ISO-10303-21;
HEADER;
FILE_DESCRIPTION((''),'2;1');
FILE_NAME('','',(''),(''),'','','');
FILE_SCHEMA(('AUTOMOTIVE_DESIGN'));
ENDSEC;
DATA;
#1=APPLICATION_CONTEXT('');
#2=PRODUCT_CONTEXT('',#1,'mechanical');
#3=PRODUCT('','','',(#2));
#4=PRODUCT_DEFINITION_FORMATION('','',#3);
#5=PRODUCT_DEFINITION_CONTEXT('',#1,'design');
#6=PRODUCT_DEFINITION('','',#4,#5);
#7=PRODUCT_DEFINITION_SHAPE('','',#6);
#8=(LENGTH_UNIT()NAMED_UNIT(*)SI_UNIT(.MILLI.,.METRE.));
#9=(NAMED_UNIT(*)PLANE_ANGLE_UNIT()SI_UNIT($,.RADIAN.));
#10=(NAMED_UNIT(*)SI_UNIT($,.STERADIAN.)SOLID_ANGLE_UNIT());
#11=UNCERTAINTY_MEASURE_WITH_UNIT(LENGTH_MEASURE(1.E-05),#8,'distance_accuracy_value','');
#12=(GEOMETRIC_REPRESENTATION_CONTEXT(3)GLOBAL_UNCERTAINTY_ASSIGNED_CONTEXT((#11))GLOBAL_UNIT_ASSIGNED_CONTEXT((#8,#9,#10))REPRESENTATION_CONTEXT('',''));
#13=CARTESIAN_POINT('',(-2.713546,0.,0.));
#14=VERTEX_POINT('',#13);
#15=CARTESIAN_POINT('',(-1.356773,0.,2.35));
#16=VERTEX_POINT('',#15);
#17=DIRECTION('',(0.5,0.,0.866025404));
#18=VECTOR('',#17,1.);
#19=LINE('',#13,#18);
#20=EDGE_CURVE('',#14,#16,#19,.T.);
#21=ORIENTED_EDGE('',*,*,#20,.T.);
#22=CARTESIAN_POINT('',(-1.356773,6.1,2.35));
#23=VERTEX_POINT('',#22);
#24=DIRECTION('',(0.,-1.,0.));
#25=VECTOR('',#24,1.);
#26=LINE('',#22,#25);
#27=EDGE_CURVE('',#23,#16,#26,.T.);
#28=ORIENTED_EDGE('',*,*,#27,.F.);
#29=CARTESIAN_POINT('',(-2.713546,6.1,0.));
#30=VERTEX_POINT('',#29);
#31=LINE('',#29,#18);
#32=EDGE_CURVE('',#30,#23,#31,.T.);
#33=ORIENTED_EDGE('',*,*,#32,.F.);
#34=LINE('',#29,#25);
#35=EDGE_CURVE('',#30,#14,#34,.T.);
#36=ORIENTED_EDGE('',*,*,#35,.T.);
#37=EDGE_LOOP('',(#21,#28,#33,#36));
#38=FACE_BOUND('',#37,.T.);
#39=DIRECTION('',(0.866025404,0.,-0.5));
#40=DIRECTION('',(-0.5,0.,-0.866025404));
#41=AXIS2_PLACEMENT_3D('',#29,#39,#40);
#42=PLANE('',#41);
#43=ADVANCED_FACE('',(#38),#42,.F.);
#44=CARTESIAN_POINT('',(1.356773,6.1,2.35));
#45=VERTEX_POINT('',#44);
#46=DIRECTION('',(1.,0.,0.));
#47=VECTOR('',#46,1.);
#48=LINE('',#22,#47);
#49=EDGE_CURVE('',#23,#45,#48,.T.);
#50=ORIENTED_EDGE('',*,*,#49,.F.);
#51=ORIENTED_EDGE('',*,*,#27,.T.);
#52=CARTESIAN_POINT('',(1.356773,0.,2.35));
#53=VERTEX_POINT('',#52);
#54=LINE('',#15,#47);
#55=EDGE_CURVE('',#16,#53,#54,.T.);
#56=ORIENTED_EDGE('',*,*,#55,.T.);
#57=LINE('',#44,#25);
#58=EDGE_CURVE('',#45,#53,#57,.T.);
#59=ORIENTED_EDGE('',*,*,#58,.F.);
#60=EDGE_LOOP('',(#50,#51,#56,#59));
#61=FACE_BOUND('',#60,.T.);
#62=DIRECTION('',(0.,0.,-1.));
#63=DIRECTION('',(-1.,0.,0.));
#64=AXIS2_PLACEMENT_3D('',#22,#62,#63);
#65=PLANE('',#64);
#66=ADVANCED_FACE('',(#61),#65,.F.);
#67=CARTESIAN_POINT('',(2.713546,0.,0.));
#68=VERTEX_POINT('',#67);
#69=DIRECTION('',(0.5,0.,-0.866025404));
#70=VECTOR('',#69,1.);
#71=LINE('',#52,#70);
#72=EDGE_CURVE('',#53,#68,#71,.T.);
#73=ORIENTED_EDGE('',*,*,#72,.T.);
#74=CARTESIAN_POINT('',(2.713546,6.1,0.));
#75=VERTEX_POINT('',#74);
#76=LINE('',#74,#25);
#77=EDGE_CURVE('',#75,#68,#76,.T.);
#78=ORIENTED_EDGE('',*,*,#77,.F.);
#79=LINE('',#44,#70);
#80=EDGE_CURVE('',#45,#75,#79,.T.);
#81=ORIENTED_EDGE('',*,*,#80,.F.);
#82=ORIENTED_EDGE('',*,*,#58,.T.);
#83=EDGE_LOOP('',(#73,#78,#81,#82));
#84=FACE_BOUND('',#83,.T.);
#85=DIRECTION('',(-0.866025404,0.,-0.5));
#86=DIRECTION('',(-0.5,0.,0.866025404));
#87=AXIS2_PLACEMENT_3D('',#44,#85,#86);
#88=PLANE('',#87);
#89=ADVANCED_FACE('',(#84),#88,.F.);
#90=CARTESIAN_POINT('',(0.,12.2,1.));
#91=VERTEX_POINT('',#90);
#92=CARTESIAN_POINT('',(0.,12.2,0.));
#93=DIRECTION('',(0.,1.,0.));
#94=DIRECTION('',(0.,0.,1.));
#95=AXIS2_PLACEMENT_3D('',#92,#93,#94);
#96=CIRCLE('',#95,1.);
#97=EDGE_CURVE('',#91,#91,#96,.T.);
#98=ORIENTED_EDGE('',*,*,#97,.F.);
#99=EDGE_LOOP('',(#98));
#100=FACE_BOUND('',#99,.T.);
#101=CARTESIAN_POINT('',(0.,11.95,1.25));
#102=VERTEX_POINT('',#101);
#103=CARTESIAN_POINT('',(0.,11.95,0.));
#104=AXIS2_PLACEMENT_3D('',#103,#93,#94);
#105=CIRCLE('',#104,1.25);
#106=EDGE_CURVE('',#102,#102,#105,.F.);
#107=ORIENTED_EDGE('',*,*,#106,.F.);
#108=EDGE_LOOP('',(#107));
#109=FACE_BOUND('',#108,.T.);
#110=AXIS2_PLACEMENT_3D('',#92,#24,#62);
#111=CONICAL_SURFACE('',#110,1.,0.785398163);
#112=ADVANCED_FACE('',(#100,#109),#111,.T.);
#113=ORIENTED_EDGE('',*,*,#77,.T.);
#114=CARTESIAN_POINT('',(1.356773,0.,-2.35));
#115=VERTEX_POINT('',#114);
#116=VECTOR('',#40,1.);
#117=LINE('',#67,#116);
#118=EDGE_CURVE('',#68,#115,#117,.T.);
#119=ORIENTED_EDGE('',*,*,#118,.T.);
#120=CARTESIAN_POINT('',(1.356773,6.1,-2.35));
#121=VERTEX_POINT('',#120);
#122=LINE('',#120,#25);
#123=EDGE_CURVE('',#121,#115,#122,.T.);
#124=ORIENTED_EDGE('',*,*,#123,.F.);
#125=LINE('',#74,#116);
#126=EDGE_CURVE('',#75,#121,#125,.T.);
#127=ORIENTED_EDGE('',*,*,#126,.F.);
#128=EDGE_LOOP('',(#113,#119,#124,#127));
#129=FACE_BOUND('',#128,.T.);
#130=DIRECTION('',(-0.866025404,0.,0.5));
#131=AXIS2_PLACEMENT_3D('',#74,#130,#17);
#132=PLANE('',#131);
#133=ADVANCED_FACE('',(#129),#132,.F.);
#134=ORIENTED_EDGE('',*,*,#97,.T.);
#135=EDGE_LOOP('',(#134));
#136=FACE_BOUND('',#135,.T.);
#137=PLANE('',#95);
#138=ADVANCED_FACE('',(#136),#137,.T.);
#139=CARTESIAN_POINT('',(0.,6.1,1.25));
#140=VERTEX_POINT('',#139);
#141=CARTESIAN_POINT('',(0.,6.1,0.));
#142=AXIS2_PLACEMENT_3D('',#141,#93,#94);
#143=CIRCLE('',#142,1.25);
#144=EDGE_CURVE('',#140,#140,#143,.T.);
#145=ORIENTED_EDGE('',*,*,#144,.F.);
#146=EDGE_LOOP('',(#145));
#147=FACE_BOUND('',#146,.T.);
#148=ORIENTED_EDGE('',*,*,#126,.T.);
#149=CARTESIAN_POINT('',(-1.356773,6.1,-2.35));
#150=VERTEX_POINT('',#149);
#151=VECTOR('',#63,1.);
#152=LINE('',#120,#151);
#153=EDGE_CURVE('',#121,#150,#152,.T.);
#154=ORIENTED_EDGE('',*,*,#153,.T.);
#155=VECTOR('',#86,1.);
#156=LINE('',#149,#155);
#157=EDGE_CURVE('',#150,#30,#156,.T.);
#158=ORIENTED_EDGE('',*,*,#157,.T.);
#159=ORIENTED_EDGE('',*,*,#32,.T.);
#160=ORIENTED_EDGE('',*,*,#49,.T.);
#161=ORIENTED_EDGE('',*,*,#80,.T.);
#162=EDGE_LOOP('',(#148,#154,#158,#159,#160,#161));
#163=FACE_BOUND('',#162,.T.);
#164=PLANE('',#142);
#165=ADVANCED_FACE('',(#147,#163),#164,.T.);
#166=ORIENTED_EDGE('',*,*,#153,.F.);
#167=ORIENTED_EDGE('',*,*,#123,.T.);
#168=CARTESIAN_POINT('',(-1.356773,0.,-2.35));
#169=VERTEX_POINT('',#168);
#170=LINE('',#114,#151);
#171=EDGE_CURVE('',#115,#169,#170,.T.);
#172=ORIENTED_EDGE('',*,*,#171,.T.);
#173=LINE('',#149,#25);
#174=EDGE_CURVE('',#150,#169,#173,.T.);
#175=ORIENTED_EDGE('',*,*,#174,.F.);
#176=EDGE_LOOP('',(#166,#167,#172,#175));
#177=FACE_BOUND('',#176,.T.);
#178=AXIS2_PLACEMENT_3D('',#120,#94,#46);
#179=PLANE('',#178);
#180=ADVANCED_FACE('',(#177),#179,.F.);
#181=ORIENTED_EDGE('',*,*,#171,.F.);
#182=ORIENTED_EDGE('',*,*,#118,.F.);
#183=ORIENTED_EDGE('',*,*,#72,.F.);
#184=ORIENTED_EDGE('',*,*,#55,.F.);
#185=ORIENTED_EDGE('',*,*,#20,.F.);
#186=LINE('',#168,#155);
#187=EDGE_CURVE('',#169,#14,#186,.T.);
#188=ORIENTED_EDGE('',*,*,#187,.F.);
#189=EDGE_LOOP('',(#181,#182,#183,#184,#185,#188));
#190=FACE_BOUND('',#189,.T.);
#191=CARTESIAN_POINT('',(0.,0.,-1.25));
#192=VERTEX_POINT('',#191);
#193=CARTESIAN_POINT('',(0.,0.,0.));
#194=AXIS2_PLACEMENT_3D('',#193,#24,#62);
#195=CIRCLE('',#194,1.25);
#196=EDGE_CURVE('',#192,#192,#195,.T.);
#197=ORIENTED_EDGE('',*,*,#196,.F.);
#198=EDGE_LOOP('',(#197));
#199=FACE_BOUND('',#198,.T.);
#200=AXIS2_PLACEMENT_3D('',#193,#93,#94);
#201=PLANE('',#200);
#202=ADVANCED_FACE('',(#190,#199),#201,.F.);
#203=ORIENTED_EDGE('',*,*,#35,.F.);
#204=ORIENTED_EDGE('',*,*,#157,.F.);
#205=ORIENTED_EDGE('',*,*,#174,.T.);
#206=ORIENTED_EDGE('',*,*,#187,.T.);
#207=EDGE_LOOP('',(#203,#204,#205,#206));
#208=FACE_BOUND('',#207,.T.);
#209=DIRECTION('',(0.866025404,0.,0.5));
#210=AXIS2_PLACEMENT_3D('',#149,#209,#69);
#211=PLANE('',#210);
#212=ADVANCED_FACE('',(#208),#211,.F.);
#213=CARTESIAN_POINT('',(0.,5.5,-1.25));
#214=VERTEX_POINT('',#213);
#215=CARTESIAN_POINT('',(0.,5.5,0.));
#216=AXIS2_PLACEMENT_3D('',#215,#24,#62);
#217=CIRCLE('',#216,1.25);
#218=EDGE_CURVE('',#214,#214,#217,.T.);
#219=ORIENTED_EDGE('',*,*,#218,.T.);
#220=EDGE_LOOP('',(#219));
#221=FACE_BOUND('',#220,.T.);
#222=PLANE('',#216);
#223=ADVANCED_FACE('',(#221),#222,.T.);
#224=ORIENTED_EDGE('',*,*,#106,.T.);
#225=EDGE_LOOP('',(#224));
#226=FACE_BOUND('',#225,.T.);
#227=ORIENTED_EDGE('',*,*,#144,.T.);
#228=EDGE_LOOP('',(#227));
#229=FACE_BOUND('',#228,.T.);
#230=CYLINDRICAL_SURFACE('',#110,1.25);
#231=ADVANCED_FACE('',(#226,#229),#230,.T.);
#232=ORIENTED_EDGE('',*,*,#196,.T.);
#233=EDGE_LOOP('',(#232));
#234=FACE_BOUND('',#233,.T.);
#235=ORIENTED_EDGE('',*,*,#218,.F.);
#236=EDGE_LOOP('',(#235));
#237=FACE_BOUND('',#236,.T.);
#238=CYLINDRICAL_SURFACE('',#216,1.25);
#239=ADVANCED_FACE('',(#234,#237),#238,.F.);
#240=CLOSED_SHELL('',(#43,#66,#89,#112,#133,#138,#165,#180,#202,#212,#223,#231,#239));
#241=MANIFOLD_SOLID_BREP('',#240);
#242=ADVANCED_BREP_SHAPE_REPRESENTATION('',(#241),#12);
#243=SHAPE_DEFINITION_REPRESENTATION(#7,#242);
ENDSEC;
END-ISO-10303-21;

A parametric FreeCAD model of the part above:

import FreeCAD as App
import Part
import Sketcher
Q = App.Units.Quantity


def edges_at(feature, points):
    """Names of the edges that pass closest to the given points."""
    edges = feature.Shape.Edges
    near = lambda p: min(range(len(edges)), key=lambda i: edges[i].distToShape(Part.Vertex(*p))[0])
    return sorted({f"Edge{near(p) + 1}" for p in points})

doc = App.newDocument("Part")
body = doc.addObject("PartDesign::Body", "Body")

# Sketch on XZ plane
sketch1 = doc.addObject("Sketcher::SketchObject", "Sketch")
body.addObject(sketch1)
sketch1.AttachmentSupport = (doc.XZ_Plane, [""])
sketch1.MapMode = "FlatFace"
sketch1.addGeometry([
    Part.LineSegment(App.Vector(2.7, 0, 0), App.Vector(1.4, -2.4, 0)),  # 0
    Part.LineSegment(App.Vector(1.4, -2.4, 0), App.Vector(-1.4, -2.4, 0)),  # 1
    Part.LineSegment(App.Vector(-1.4, -2.4, 0), App.Vector(-2.7, 0, 0)),  # 2
    Part.LineSegment(App.Vector(-2.7, 0, 0), App.Vector(-1.4, 2.4, 0)),  # 3
    Part.LineSegment(App.Vector(-1.4, 2.4, 0), App.Vector(1.4, 2.4, 0)),  # 4
    Part.LineSegment(App.Vector(1.4, 2.4, 0), App.Vector(2.7, 0, 0)),  # 5
], False)
sketch1.addConstraint([
    Sketcher.Constraint("Coincident", 0, 2, 1, 1),
    Sketcher.Constraint("Coincident", 1, 2, 2, 1),
    Sketcher.Constraint("Coincident", 2, 2, 3, 1),
    Sketcher.Constraint("Coincident", 3, 2, 4, 1),
    Sketcher.Constraint("Coincident", 4, 2, 5, 1),
    Sketcher.Constraint("Coincident", 5, 2, 0, 1),
    Sketcher.Constraint("Horizontal", 1),
    Sketcher.Constraint("Horizontal", 4),
    Sketcher.Constraint("Symmetric", 0, 2, 3, 2, -1, 1),
    Sketcher.Constraint("Symmetric", 2, 2, 5, 2, -1, 1),
    Sketcher.Constraint("PointOnObject", 2, 2, -1),
    Sketcher.Constraint("Parallel", 2, 5),
    Sketcher.Constraint("Vertical", 1, 2, 3, 2),
    Sketcher.Constraint("Angle", 0, Q("-120 deg")),
    Sketcher.Constraint("DistanceY", 1, 2, 3, 2, 4.7),
    Sketcher.Constraint("DistanceX", 1, 2, 1, 1, 2.713546),
])
pad1 = doc.addObject("PartDesign::Pad", "Pad")
body.addObject(pad1)
pad1.Profile = sketch1
pad1.Length = 6.1
pad1.Reversed = True

# Sketch on XZ plane
sketch2 = doc.addObject("Sketcher::SketchObject", "Sketch001")
body.addObject(sketch2)
sketch2.AttachmentSupport = (doc.XZ_Plane, [""])
sketch2.MapMode = "FlatFace"
sketch2.AttachmentOffset = App.Placement(App.Vector(0, 0, -6.1), App.Rotation())
sketch2.addGeometry(Part.Circle(App.Vector(0, 0, 0), App.Vector(0, 0, 1), 1.2), False)
sketch2.addConstraint([
    Sketcher.Constraint("Coincident", 0, 3, -1, 1),
    Sketcher.Constraint("Diameter", 0, 2.5),
])
pad2 = doc.addObject("PartDesign::Pad", "Pad001")
body.addObject(pad2)
pad2.Profile = sketch2
pad2.Length = 6.1
pad2.Reversed = True
doc.recompute()

chamfer = doc.addObject("PartDesign::Chamfer", "Chamfer")
body.addObject(chamfer)
chamfer.Base = (pad2, edges_at(pad2, [(0, 12.2, -1.25)]))
chamfer.Size = 0.25

# Sketch on XZ plane
sketch3 = doc.addObject("Sketcher::SketchObject", "Sketch002")
body.addObject(sketch3)
sketch3.AttachmentSupport = (doc.XZ_Plane, [""])
sketch3.MapMode = "FlatFace"
sketch3.addGeometry(Part.Circle(App.Vector(0, 0, 0), App.Vector(0, 0, 1), 1.2), False)
sketch3.addConstraint([
    Sketcher.Constraint("Coincident", 0, 3, -1, 1),
    Sketcher.Constraint("Diameter", 0, 2.5),
])
pocket1 = doc.addObject("PartDesign::Pocket", "Pocket")
body.addObject(pocket1)
pocket1.Profile = sketch3
pocket1.Length = 5.5

doc.recompute()
